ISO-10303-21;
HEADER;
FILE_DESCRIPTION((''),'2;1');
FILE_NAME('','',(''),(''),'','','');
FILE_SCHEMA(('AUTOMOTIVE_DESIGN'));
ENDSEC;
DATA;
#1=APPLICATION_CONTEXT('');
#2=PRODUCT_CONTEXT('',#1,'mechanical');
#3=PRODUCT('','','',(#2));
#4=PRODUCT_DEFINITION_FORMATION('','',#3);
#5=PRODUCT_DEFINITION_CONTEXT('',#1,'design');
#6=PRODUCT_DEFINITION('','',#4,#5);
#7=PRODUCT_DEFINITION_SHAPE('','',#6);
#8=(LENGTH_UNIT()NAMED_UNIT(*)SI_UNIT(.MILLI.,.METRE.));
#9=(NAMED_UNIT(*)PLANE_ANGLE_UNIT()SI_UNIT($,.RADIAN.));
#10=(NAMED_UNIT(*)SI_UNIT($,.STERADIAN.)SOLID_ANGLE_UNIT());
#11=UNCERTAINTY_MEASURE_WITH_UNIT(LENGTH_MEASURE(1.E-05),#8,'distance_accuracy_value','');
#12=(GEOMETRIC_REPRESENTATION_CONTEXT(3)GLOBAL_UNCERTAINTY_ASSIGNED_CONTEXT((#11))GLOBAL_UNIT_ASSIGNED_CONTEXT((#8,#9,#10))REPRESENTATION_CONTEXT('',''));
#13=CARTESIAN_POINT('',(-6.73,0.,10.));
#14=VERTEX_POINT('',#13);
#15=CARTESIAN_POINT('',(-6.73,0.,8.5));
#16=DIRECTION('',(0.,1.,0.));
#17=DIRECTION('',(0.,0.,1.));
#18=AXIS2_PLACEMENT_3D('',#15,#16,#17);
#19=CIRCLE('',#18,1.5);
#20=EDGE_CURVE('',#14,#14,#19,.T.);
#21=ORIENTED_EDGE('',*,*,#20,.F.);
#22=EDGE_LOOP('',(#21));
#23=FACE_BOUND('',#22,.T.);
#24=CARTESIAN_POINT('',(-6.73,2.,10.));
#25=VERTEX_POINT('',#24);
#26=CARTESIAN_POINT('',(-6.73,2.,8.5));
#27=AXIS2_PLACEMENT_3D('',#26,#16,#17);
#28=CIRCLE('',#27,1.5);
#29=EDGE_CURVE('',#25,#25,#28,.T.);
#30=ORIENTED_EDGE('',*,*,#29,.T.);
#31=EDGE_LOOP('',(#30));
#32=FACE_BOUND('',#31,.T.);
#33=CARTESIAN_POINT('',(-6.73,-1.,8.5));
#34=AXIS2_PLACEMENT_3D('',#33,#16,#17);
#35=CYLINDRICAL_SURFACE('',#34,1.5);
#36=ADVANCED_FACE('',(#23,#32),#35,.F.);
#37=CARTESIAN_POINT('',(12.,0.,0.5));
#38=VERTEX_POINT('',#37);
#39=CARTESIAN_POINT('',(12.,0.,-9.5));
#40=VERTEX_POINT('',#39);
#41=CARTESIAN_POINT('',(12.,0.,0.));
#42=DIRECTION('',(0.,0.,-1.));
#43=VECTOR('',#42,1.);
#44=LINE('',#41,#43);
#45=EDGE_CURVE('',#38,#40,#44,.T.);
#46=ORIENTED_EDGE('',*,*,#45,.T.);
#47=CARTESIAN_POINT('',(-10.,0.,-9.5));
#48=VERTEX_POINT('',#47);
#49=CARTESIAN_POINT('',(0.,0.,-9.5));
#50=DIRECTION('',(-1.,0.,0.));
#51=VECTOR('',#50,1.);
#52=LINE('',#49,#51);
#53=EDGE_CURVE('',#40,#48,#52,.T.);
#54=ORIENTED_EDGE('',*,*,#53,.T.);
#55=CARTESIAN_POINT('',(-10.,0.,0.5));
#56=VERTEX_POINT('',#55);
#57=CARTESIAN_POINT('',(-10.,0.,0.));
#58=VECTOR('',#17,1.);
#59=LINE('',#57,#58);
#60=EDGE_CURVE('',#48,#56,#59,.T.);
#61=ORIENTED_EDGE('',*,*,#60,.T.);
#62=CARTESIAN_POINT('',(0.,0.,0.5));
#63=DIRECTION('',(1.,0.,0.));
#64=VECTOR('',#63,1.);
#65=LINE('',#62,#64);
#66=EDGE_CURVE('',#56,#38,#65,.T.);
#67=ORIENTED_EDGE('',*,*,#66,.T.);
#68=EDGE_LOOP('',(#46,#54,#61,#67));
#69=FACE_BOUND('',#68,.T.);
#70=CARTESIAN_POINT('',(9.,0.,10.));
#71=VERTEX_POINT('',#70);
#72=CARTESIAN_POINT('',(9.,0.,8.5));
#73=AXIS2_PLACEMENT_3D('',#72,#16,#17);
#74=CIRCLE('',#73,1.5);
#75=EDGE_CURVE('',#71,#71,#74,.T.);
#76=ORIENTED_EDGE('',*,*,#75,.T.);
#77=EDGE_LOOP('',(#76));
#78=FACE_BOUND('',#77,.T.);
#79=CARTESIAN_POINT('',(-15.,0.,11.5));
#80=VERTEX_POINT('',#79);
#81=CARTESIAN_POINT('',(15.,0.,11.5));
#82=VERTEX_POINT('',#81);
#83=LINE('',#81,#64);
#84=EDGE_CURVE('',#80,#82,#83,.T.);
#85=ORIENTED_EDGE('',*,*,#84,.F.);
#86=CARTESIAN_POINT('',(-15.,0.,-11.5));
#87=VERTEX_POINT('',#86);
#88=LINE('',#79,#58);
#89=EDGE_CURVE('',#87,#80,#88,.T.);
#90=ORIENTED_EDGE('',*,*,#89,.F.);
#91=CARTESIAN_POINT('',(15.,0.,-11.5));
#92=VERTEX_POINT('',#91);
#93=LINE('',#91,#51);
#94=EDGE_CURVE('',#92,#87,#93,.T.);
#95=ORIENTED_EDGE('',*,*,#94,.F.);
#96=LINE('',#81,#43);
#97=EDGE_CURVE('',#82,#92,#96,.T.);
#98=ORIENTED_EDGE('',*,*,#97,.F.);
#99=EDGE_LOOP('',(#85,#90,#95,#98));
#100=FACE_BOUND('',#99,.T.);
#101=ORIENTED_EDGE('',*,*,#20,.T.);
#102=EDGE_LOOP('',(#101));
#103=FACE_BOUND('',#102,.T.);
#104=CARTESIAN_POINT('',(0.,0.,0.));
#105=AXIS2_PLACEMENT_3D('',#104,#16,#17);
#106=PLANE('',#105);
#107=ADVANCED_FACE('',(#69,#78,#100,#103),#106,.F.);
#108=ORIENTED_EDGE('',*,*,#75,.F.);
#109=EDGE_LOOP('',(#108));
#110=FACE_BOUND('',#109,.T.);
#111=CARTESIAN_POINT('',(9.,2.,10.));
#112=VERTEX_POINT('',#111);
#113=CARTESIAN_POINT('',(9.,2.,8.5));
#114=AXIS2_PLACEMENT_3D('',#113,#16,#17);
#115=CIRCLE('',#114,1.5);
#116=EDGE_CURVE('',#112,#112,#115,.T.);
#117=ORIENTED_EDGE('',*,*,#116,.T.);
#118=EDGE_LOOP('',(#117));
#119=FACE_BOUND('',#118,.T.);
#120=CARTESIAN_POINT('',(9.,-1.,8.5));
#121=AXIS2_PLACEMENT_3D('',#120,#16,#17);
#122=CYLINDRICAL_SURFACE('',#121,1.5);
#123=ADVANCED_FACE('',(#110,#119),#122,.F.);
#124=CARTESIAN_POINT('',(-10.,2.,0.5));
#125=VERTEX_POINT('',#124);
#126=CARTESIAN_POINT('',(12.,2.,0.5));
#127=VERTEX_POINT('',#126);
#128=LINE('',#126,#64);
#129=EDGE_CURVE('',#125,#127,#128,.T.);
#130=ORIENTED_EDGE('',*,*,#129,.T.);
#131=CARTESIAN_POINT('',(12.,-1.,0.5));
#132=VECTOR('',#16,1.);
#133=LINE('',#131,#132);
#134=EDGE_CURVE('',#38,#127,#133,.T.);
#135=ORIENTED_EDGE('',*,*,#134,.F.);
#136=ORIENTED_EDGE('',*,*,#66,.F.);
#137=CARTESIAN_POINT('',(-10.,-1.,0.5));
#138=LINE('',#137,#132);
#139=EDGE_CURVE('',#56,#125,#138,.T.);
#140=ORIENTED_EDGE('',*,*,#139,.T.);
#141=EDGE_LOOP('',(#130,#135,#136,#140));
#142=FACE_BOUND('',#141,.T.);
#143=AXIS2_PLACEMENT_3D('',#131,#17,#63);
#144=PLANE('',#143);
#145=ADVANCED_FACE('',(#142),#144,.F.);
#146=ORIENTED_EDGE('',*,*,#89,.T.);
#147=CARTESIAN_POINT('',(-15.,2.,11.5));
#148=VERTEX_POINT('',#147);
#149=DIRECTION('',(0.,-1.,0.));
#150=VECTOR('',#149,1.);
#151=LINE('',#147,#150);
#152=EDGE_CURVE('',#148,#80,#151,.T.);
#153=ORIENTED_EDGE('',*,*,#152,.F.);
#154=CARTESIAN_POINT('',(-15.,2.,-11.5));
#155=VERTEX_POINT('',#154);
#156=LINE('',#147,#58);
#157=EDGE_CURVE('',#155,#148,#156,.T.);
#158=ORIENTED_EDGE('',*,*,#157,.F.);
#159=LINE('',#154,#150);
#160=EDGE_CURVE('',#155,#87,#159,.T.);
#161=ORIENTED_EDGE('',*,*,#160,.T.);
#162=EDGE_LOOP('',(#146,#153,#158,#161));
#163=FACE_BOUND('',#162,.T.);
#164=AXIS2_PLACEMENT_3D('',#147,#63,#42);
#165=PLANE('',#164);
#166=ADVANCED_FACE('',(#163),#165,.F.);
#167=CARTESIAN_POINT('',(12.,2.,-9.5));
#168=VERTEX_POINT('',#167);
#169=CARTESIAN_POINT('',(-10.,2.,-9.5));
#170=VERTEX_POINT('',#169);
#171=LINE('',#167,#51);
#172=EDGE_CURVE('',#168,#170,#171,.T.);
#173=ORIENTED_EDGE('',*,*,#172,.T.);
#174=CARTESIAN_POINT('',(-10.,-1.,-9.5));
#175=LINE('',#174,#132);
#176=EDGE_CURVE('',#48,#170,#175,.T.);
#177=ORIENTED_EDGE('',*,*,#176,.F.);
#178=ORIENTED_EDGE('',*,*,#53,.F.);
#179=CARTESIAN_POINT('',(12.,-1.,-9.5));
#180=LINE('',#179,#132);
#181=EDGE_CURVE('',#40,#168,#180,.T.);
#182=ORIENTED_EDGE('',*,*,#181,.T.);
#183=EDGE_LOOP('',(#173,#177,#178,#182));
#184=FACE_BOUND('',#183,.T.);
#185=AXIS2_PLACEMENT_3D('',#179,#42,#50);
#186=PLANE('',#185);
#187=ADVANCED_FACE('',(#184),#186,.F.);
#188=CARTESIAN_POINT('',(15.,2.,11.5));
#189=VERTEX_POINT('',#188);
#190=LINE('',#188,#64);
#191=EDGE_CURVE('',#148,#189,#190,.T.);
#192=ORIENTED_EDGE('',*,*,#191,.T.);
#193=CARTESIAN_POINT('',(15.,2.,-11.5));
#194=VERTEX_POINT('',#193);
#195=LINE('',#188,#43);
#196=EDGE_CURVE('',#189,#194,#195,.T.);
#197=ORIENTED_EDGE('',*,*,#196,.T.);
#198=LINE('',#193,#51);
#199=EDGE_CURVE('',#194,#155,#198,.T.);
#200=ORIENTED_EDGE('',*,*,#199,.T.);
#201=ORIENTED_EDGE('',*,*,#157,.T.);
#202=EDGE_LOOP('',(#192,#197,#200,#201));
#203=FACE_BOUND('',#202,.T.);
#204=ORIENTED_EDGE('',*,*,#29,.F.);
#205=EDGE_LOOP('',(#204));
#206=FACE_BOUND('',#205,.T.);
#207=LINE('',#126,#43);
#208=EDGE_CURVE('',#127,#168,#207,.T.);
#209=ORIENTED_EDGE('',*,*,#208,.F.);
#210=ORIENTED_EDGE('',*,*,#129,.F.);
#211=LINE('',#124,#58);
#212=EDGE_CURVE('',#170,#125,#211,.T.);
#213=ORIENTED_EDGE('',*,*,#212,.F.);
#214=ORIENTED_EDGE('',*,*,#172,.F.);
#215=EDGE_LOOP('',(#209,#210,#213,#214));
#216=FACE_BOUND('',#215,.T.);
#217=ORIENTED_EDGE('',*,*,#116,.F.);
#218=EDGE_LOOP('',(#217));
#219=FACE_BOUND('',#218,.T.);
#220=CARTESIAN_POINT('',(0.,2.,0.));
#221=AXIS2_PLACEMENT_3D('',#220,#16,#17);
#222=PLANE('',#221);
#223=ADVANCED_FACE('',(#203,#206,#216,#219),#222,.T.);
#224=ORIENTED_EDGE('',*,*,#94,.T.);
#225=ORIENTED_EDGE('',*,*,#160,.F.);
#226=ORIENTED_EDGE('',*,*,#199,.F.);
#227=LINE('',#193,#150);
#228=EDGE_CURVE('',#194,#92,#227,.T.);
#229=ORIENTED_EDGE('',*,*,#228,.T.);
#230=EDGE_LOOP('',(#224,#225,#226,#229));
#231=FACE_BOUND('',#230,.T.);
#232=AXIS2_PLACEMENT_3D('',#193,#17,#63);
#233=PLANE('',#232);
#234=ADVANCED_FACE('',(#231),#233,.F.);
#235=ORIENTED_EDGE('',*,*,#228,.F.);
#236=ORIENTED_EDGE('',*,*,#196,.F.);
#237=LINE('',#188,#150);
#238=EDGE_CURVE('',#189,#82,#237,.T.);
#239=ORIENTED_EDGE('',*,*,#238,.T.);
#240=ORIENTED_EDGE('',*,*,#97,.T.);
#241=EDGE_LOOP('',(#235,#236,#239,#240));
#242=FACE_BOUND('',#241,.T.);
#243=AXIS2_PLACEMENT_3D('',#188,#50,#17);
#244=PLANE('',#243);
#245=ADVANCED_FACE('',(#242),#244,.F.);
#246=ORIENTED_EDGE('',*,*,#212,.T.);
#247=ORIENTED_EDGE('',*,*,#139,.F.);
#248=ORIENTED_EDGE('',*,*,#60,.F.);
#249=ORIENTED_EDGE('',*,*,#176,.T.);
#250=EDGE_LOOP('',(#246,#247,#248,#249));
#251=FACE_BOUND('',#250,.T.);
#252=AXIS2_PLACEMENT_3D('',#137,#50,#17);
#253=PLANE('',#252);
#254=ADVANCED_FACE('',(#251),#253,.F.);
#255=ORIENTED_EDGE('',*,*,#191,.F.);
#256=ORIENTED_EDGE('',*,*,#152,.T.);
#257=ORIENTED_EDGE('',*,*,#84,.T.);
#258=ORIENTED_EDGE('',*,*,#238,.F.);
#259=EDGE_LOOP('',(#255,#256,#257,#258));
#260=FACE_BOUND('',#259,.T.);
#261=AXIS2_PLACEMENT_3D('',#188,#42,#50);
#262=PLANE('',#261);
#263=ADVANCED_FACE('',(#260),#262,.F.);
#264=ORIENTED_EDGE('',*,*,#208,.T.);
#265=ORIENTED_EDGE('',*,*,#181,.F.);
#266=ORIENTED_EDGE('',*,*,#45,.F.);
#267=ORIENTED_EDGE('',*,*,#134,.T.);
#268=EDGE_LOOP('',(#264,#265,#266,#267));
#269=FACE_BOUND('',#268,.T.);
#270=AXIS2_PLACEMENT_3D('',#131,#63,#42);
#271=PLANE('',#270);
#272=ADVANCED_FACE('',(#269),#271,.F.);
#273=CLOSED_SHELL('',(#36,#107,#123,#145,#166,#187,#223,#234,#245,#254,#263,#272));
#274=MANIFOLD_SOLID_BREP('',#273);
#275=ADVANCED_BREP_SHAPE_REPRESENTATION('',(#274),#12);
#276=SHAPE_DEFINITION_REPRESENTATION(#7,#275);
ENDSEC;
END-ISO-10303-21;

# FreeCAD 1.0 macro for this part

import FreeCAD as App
import Part
import Sketcher


def add_polygon(sketch, points):
    """Adds a closed chain of lines whose ends are joined by coincident constraints."""
    first, n = sketch.GeometryCount, len(points)
    for a, b in zip(points, points[1:] + points[:1]):
        sketch.addGeometry(Part.LineSegment(App.Vector(*a, 0), App.Vector(*b, 0)), False)
    for i in range(n):
        sketch.addConstraint(Sketcher.Constraint("Coincident", first + i, 2, first + (i + 1) % n, 1))

doc = App.newDocument("Part")
body = doc.addObject("PartDesign::Body", "Body")

sketch1 = body.newObject("Sketcher::SketchObject", "Sketch")
sketch1.AttachmentSupport = (doc.getObject("XZ_Plane"), [""])
sketch1.MapMode = "FlatFace"
add_polygon(sketch1, [(-15, -12), (-15, 12), (15, 12), (15, -12)])
sketch1.addConstraint(Sketcher.Constraint("Vertical", 0))
sketch1.addConstraint(Sketcher.Constraint("Horizontal", 1))
sketch1.addConstraint(Sketcher.Constraint("Vertical", 2))
sketch1.addConstraint(Sketcher.Constraint("Horizontal", 3))
sketch1.addConstraint(Sketcher.Constraint("Symmetric", 0, 2, 2, 2, -1, 1))
sketch1.addConstraint(Sketcher.Constraint("DistanceX", 1, 1, 1, 2, 30.0))
sketch1.addConstraint(Sketcher.Constraint("DistanceY", 0, 1, 0, 2, 23.0))
pad1 = body.newObject("PartDesign::Pad", "Pad")
pad1.Profile = sketch1
pad1.Length = 2
pad1.Reversed = True

sketch2 = body.newObject("Sketcher::SketchObject", "Sketch001")
sketch2.AttachmentSupport = (doc.getObject("XZ_Plane"), [""])
sketch2.MapMode = "FlatFace"
sketch2.AttachmentOffset = App.Placement(App.Vector(0, 0, -2), App.Rotation())
sketch2.addGeometry(Part.Circle(App.Vector(-6.7, 8.5, 0), App.Vector(0, 0, 1), 1.5), False)
sketch2.addGeometry(Part.Circle(App.Vector(9, 8.5, 0), App.Vector(0, 0, 1), 1.5), False)
add_polygon(sketch2, [(-10, -9.5), (-10, 0.5), (12, 0.5), (12, -9.5)])
sketch2.addConstraint(Sketcher.Constraint("Vertical", 2))
sketch2.addConstraint(Sketcher.Constraint("Horizontal", 3))
sketch2.addConstraint(Sketcher.Constraint("Vertical", 4))
sketch2.addConstraint(Sketcher.Constraint("Horizontal", 5))
sketch2.addConstraint(Sketcher.Constraint("Equal", 0, 1))
sketch2.addConstraint(Sketcher.Constraint("Horizontal", 0, 3, 1, 3))
sketch2.addConstraint(Sketcher.Constraint("Diameter", 0, 3.0))
sketch2.addConstraint(Sketcher.Constraint("DistanceX", 3, 1, 3, 2, 22.0))
sketch2.addConstraint(Sketcher.Constraint("DistanceY", 2, 1, 2, 2, 10.0))
sketch2.addConstraint(Sketcher.Constraint("DistanceX", -1, 1, 1, 3, 9.0))
sketch2.addConstraint(Sketcher.Constraint("DistanceX", 2, 2, -1, 1, 10.0))
sketch2.addConstraint(Sketcher.Constraint("DistanceY", 2, 2, 0, 3, 8.0))
sketch2.addConstraint(Sketcher.Constraint("DistanceY", -1, 1, 0, 3, 8.5))
sketch2.addConstraint(Sketcher.Constraint("DistanceX", 0, 3, -1, 1, 6.73))
pocket1 = body.newObject("PartDesign::Pocket", "Pocket")
pocket1.Profile = sketch2
pocket1.Length = 3
pocket1.Reversed = True

doc.recompute()
